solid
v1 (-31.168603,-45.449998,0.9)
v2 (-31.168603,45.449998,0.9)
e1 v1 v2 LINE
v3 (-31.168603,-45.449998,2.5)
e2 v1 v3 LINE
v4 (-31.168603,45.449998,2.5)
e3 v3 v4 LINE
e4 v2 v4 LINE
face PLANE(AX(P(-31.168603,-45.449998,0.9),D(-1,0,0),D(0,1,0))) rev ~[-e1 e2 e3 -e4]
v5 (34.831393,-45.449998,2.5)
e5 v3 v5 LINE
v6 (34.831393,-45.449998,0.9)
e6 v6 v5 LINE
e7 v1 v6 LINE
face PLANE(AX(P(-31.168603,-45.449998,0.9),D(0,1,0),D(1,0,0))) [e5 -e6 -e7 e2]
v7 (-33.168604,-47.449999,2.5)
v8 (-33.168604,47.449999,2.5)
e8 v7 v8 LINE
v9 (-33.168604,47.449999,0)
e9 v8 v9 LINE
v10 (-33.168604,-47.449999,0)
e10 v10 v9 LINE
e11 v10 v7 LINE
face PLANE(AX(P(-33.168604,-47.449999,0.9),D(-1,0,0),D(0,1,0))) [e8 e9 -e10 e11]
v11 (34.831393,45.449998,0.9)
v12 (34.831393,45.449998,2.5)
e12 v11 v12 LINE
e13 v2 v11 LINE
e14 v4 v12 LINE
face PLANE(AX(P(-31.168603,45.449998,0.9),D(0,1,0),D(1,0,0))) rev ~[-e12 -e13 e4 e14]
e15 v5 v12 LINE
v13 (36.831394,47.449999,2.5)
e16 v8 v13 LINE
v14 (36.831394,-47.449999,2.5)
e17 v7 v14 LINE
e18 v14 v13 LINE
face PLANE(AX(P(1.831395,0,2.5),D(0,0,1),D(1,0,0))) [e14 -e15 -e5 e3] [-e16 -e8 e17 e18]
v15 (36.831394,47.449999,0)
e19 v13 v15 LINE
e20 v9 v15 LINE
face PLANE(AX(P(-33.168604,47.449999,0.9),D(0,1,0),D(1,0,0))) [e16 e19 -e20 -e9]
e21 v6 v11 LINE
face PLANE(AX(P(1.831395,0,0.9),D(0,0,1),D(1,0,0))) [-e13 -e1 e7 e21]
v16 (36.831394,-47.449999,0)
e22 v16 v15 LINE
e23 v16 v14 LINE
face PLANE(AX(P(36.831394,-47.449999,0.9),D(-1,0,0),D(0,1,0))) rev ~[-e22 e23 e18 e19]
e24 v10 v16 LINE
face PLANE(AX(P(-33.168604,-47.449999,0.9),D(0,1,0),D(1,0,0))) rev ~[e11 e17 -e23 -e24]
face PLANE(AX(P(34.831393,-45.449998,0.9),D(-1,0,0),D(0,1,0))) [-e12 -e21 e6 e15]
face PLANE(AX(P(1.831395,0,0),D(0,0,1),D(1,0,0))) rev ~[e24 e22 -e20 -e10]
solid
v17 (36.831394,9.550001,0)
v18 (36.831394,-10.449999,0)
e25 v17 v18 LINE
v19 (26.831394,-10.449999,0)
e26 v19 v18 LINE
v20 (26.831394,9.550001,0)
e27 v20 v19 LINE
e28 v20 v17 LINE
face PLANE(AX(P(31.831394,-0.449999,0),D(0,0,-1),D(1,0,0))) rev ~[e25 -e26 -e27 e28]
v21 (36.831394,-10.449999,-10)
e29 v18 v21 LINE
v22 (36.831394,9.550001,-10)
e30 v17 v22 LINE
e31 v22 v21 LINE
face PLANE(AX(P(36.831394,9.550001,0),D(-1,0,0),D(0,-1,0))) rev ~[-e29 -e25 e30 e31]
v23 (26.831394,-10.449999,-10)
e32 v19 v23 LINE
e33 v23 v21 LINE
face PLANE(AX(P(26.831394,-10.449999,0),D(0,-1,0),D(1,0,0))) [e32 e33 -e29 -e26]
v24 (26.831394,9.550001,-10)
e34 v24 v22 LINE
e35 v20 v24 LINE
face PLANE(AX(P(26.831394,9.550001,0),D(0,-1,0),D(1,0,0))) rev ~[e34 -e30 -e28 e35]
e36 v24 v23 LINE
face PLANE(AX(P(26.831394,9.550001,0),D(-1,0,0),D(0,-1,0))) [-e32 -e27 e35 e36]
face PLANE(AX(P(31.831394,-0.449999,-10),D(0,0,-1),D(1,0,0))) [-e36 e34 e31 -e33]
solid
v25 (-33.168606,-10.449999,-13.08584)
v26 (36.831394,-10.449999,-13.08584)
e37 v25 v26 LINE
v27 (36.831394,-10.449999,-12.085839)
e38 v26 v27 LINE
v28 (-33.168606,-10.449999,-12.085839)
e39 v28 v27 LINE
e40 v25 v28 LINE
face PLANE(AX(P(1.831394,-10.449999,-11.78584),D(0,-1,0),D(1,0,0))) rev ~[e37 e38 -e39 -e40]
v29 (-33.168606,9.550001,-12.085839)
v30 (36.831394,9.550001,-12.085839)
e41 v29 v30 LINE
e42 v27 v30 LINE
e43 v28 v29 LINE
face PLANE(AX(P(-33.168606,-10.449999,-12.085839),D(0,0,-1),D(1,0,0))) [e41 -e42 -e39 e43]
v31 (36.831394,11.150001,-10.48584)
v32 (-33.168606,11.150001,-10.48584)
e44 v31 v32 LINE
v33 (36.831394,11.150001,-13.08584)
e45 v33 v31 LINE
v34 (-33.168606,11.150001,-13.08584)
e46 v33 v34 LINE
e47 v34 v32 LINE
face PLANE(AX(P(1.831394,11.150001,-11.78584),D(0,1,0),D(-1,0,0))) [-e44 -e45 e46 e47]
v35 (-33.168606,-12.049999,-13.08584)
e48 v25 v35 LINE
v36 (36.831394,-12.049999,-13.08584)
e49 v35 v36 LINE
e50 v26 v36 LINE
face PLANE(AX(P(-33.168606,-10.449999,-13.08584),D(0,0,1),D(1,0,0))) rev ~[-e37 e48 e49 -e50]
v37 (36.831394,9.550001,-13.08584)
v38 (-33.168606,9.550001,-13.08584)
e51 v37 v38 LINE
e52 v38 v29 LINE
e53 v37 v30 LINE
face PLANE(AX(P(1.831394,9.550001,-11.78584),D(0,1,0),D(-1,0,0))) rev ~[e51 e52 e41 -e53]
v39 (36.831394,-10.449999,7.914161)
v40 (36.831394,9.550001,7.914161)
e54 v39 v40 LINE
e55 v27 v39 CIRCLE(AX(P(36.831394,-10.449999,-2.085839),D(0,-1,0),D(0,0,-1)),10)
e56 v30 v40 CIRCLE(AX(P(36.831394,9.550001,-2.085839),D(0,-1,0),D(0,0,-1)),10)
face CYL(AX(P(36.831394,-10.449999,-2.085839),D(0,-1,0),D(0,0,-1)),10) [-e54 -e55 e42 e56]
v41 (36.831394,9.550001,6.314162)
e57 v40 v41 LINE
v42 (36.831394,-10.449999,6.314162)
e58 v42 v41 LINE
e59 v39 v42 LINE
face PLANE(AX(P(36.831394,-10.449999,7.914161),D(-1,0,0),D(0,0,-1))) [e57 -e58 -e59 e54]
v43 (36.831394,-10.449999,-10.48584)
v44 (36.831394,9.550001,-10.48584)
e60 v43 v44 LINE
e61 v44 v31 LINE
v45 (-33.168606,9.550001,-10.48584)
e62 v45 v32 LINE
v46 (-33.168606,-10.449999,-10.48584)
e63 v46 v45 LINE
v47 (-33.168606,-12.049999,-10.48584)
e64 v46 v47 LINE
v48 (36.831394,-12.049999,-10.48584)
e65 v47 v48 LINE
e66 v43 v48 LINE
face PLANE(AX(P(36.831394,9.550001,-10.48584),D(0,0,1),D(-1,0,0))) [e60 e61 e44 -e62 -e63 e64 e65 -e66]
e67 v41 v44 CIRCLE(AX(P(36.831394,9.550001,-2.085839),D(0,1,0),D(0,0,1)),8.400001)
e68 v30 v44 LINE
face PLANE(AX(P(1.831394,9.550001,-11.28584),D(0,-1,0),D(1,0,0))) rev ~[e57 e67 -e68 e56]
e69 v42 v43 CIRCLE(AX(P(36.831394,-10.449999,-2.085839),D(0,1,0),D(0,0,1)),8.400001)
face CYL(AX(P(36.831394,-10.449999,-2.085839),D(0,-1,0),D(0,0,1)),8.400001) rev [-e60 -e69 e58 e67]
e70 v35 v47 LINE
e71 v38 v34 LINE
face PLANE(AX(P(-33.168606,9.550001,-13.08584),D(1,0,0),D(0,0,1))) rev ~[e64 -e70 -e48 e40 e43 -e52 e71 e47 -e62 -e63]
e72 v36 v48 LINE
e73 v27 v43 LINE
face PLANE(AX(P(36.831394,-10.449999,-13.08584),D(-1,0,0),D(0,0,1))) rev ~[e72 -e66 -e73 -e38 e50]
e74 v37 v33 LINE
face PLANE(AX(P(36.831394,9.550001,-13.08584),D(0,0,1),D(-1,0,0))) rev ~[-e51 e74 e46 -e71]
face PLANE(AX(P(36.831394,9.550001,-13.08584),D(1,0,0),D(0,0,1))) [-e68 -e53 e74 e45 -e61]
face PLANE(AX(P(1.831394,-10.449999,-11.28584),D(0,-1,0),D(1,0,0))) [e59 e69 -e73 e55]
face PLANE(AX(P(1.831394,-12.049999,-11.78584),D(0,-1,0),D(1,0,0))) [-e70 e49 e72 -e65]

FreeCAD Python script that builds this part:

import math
import FreeCAD as App
import Part
import Sketcher

V = App.Vector


def add_polygon(sketch, points):
    """Adds a closed chain of lines whose ends are joined by coincident constraints."""
    first, n = sketch.GeometryCount, len(points)
    for a, b in zip(points, points[1:] + points[:1]):
        sketch.addGeometry(Part.LineSegment(App.Vector(*a, 0), App.Vector(*b, 0)), False)
    for i in range(n):
        sketch.addConstraint(Sketcher.Constraint("Coincident", first + i, 2, first + (i + 1) % n, 1))

doc = App.newDocument("Part")
params = doc.addObject("Spreadsheet::Sheet", "Params")
for row, (alias, value) in enumerate([
    ("pad1_length", "0.9 mm"),
    ("pad2_length", "1.6 mm"),
    ("sketch3_width", "10 mm"),
    ("sketch3_height", "20 mm"),
    ("pad3_length", "10 mm"),
    ("sketch4_radius", "10 mm"),
    ("sketch4_radius2", "8.400001 mm"),
    ("sketch4_width", "70 mm"),
    ("pad4_length", "20 mm"),
    ("sketch5_width", "70 mm"),
    ("sketch5_height", "2.6 mm"),
    ("pad5_length", "1.6 mm"),
    ("sketch6_width", "70 mm"),
    ("sketch6_height", "2.6 mm"),
    ("pad6_length", "1.6 mm"),
], start=1):
    params.set(f"A{row}", alias)
    params.set(f"B{row}", "=" + value)
    params.setAlias(f"B{row}", alias)

body = doc.addObject("PartDesign::Body", "Body")

sketch1 = body.newObject("Sketcher::SketchObject", "Sketch")
sketch1.AttachmentSupport = (doc.getObject("XY_Plane"), [""])
sketch1.MapMode = "FlatFace"
add_polygon(sketch1, [(-33.168604, 47.449999), (-33.168604, -47.449999), (36.831394, -47.449999), (36.831394, 47.449999)])
sketch1.addConstraint([
    Sketcher.Constraint("Vertical", 0),
    Sketcher.Constraint("Horizontal", 1),
    Sketcher.Constraint("Vertical", 2),
    Sketcher.Constraint("Horizontal", 3),
    Sketcher.Constraint("DistanceY", 0, 2, -1, 1, 47.449999),
    Sketcher.Constraint("DistanceY", -1, 1, 2, 2, 47.449999),
    Sketcher.Constraint("DistanceX", 1, 1, 1, 2, 69.999997),
    Sketcher.Constraint("DistanceX", 0, 2, -1, 1, 33.168604),
])
pad1 = body.newObject("PartDesign::Pad", "Pad")
pad1.Profile = sketch1
pad1.setExpression("Length", "Params.pad1_length")

sketch2 = body.newObject("Sketcher::SketchObject", "Sketch001")
sketch2.AttachmentSupport = (doc.getObject("XY_Plane"), [""])
sketch2.MapMode = "FlatFace"
sketch2.AttachmentOffset = App.Placement(V(0, 0, 0.9), App.Rotation())
add_polygon(sketch2, [(-33.168604, 47.449999), (-33.168604, -47.449999), (36.831394, -47.449999), (36.831394, 47.449999)])
add_polygon(sketch2, [(34.831393, -45.449998), (-31.168603, -45.449998), (-31.168603, 45.449998), (34.831393, 45.449998)])
sketch2.addConstraint([
    Sketcher.Constraint("Vertical", 0),
    Sketcher.Constraint("Horizontal", 1),
    Sketcher.Constraint("Vertical", 2),
    Sketcher.Constraint("Horizontal", 3),
    Sketcher.Constraint("Horizontal", 4),
    Sketcher.Constraint("Vertical", 5),
    Sketcher.Constraint("Horizontal", 6),
    Sketcher.Constraint("Vertical", 7),
    Sketcher.Constraint("DistanceX", 0, 2, 4, 2, 2.0),
    Sketcher.Constraint("DistanceY", 0, 2, 4, 2, 2.0),
    Sketcher.Constraint("DistanceY", 5, 2, 3, 2, 2.0),
    Sketcher.Constraint("DistanceX", 6, 2, 2, 2, 2.0),
    Sketcher.Constraint("DistanceY", 0, 2, -1, 1, 47.449999),
    Sketcher.Constraint("DistanceY", -1, 1, 2, 2, 47.449999),
    Sketcher.Constraint("DistanceX", 1, 1, 1, 2, 69.999997),
    Sketcher.Constraint("DistanceX", 0, 2, -1, 1, 33.168604),
])
pad2 = body.newObject("PartDesign::Pad", "Pad001")
pad2.Profile = sketch2
pad2.setExpression("Length", "Params.pad2_length")
body2 = doc.addObject("PartDesign::Body", "Body001")

sketch3 = body2.newObject("Sketcher::SketchObject", "Sketch002")
sketch3.AttachmentSupport = (doc.getObject("XY_Plane001"), [""])
sketch3.MapMode = "FlatFace"
add_polygon(sketch3, [(26.831394, -10.449999), (26.831394, 9.550001), (36.831394, 9.550001), (36.831394, -10.449999)])
sketch3.addConstraint([
    Sketcher.Constraint("Vertical", 0),
    Sketcher.Constraint("Horizontal", 1),
    Sketcher.Constraint("Vertical", 2),
    Sketcher.Constraint("Horizontal", 3),
    Sketcher.Constraint("DistanceX", 1, 1, 1, 2, 10.0),
    Sketcher.Constraint("DistanceY", 0, 1, 0, 2, 20.0),
    Sketcher.Constraint("DistanceY", -1, 1, 0, 2, 9.550001),
    Sketcher.Constraint("DistanceX", -1, 1, 0, 2, 26.831394),
])
sketch3.setExpression("Constraints[8]", "Params.sketch3_width")
sketch3.setExpression("Constraints[9]", "Params.sketch3_height")
pad3 = body2.newObject("PartDesign::Pad", "Pad002")
pad3.Profile = sketch3
pad3.setExpression("Length", "Params.pad3_length")
pad3.Reversed = True
body3 = doc.addObject("PartDesign::Body", "Body002")

sketch4 = body3.newObject("Sketcher::SketchObject", "Sketch003")
sketch4.AttachmentSupport = (doc.getObject("XZ_Plane002"), [""])
sketch4.MapMode = "FlatFace"
sketch4.AttachmentOffset = App.Placement(V(0, 0, 10.449999), App.Rotation())
sketch4.addGeometry([
    Part.LineSegment(V(-33.168606, -10.48584, 0), V(-33.168606, -12.085839, 0)),
    Part.LineSegment(V(-33.168606, -12.085839, 0), V(36.831394, -12.085839, 0)),
    Part.ArcOfCircle(Part.Circle(V(36.831394, -2.085839, 0), V(0, 0, 1), 10), math.radians(-90), math.radians(90)),
    Part.LineSegment(V(36.831394, 7.914161, 0), V(36.831394, 6.314162, 0)),
    Part.ArcOfCircle(Part.Circle(V(36.831394, -2.085839, 0), V(0, 0, 1), 8.400001), math.radians(-90), math.radians(90)),
    Part.LineSegment(V(36.831394, -10.48584, 0), V(-33.168606, -10.48584, 0)),
], False)
sketch4.addConstraint([
    Sketcher.Constraint("Coincident", 0, 2, 1, 1),
    Sketcher.Constraint("Tangent", 1, 2, 2, 1),
    Sketcher.Constraint("Coincident", 2, 2, 3, 1),
    Sketcher.Constraint("Coincident", 3, 2, 4, 2),
    Sketcher.Constraint("Tangent", 4, 1, 5, 1),
    Sketcher.Constraint("Coincident", 5, 2, 0, 1),
    Sketcher.Constraint("Vertical", 0),
    Sketcher.Constraint("Horizontal", 1),
    Sketcher.Constraint("Vertical", 3),
    Sketcher.Constraint("Horizontal", 5),
    Sketcher.Constraint("Coincident", 4, 3, 2, 3),
    Sketcher.Constraint("Vertical", 1, 2, 2, 2),
    Sketcher.Constraint("Radius", 2, 10.0),
    Sketcher.Constraint("Radius", 4, 8.400001),
    Sketcher.Constraint("DistanceX", 1, 1, 1, 2, 70.0),
    Sketcher.Constraint("DistanceY", 2, 3, -1, 1, 2.085839),
    Sketcher.Constraint("DistanceX", -1, 1, 2, 3, 36.831394),
])
sketch4.setExpression("Constraints[12]", "Params.sketch4_radius")
sketch4.setExpression("Constraints[13]", "Params.sketch4_radius2")
sketch4.setExpression("Constraints[14]", "Params.sketch4_width")
pad4 = body3.newObject("PartDesign::Pad", "Pad003")
pad4.Profile = sketch4
pad4.setExpression("Length", "Params.pad4_length")
pad4.Reversed = True

sketch5 = body3.newObject("Sketcher::SketchObject", "Sketch004")
sketch5.AttachmentSupport = (doc.getObject("XZ_Plane002"), [""])
sketch5.MapMode = "FlatFace"
sketch5.AttachmentOffset = App.Placement(V(0, 0, 10.449999), App.Rotation())
add_polygon(sketch5, [(-33.168606, -10.48584), (-33.168606, -13.08584), (36.831394, -13.08584), (36.831394, -10.48584)])
sketch5.addConstraint([
    Sketcher.Constraint("Vertical", 0),
    Sketcher.Constraint("Horizontal", 1),
    Sketcher.Constraint("Vertical", 2),
    Sketcher.Constraint("Horizontal", 3),
    Sketcher.Constraint("DistanceX", 1, 1, 1, 2, 70.0),
    Sketcher.Constraint("DistanceY", 0, 2, 0, 1, 2.6),
    Sketcher.Constraint("DistanceY", 0, 2, -1, 1, 13.08584),
    Sketcher.Constraint("DistanceX", 0, 2, -1, 1, 33.168606),
])
sketch5.setExpression("Constraints[8]", "Params.sketch5_width")
sketch5.setExpression("Constraints[9]", "Params.sketch5_height")
pad5 = body3.newObject("PartDesign::Pad", "Pad004")
pad5.Profile = sketch5
pad5.setExpression("Length", "Params.pad5_length")

sketch6 = body3.newObject("Sketcher::SketchObject", "Sketch005")
sketch6.AttachmentSupport = (doc.getObject("XZ_Plane002"), [""])
sketch6.MapMode = "FlatFace"
sketch6.AttachmentOffset = App.Placement(V(0, 0, -9.550001), App.Rotation())
add_polygon(sketch6, [(36.831394, -10.48584), (36.831394, -13.08584), (-33.168606, -13.08584), (-33.168606, -10.48584)])
sketch6.addConstraint([
    Sketcher.Constraint("Vertical", 0),
    Sketcher.Constraint("Horizontal", 1),
    Sketcher.Constraint("Vertical", 2),
    Sketcher.Constraint("Horizontal", 3),
    Sketcher.Constraint("DistanceX", 1, 2, 1, 1, 70.0),
    Sketcher.Constraint("DistanceY", 0, 2, 0, 1, 2.6),
    Sketcher.Constraint("DistanceY", 0, 2, -1, 1, 13.08584),
    Sketcher.Constraint("DistanceX", -1, 1, 0, 2, 36.831394),
])
sketch6.setExpression("Constraints[8]", "Params.sketch6_width")
sketch6.setExpression("Constraints[9]", "Params.sketch6_height")
pad6 = body3.newObject("PartDesign::Pad", "Pad005")
pad6.Profile = sketch6
pad6.setExpression("Length", "Params.pad6_length")
pad6.Reversed = True

doc.recompute()
